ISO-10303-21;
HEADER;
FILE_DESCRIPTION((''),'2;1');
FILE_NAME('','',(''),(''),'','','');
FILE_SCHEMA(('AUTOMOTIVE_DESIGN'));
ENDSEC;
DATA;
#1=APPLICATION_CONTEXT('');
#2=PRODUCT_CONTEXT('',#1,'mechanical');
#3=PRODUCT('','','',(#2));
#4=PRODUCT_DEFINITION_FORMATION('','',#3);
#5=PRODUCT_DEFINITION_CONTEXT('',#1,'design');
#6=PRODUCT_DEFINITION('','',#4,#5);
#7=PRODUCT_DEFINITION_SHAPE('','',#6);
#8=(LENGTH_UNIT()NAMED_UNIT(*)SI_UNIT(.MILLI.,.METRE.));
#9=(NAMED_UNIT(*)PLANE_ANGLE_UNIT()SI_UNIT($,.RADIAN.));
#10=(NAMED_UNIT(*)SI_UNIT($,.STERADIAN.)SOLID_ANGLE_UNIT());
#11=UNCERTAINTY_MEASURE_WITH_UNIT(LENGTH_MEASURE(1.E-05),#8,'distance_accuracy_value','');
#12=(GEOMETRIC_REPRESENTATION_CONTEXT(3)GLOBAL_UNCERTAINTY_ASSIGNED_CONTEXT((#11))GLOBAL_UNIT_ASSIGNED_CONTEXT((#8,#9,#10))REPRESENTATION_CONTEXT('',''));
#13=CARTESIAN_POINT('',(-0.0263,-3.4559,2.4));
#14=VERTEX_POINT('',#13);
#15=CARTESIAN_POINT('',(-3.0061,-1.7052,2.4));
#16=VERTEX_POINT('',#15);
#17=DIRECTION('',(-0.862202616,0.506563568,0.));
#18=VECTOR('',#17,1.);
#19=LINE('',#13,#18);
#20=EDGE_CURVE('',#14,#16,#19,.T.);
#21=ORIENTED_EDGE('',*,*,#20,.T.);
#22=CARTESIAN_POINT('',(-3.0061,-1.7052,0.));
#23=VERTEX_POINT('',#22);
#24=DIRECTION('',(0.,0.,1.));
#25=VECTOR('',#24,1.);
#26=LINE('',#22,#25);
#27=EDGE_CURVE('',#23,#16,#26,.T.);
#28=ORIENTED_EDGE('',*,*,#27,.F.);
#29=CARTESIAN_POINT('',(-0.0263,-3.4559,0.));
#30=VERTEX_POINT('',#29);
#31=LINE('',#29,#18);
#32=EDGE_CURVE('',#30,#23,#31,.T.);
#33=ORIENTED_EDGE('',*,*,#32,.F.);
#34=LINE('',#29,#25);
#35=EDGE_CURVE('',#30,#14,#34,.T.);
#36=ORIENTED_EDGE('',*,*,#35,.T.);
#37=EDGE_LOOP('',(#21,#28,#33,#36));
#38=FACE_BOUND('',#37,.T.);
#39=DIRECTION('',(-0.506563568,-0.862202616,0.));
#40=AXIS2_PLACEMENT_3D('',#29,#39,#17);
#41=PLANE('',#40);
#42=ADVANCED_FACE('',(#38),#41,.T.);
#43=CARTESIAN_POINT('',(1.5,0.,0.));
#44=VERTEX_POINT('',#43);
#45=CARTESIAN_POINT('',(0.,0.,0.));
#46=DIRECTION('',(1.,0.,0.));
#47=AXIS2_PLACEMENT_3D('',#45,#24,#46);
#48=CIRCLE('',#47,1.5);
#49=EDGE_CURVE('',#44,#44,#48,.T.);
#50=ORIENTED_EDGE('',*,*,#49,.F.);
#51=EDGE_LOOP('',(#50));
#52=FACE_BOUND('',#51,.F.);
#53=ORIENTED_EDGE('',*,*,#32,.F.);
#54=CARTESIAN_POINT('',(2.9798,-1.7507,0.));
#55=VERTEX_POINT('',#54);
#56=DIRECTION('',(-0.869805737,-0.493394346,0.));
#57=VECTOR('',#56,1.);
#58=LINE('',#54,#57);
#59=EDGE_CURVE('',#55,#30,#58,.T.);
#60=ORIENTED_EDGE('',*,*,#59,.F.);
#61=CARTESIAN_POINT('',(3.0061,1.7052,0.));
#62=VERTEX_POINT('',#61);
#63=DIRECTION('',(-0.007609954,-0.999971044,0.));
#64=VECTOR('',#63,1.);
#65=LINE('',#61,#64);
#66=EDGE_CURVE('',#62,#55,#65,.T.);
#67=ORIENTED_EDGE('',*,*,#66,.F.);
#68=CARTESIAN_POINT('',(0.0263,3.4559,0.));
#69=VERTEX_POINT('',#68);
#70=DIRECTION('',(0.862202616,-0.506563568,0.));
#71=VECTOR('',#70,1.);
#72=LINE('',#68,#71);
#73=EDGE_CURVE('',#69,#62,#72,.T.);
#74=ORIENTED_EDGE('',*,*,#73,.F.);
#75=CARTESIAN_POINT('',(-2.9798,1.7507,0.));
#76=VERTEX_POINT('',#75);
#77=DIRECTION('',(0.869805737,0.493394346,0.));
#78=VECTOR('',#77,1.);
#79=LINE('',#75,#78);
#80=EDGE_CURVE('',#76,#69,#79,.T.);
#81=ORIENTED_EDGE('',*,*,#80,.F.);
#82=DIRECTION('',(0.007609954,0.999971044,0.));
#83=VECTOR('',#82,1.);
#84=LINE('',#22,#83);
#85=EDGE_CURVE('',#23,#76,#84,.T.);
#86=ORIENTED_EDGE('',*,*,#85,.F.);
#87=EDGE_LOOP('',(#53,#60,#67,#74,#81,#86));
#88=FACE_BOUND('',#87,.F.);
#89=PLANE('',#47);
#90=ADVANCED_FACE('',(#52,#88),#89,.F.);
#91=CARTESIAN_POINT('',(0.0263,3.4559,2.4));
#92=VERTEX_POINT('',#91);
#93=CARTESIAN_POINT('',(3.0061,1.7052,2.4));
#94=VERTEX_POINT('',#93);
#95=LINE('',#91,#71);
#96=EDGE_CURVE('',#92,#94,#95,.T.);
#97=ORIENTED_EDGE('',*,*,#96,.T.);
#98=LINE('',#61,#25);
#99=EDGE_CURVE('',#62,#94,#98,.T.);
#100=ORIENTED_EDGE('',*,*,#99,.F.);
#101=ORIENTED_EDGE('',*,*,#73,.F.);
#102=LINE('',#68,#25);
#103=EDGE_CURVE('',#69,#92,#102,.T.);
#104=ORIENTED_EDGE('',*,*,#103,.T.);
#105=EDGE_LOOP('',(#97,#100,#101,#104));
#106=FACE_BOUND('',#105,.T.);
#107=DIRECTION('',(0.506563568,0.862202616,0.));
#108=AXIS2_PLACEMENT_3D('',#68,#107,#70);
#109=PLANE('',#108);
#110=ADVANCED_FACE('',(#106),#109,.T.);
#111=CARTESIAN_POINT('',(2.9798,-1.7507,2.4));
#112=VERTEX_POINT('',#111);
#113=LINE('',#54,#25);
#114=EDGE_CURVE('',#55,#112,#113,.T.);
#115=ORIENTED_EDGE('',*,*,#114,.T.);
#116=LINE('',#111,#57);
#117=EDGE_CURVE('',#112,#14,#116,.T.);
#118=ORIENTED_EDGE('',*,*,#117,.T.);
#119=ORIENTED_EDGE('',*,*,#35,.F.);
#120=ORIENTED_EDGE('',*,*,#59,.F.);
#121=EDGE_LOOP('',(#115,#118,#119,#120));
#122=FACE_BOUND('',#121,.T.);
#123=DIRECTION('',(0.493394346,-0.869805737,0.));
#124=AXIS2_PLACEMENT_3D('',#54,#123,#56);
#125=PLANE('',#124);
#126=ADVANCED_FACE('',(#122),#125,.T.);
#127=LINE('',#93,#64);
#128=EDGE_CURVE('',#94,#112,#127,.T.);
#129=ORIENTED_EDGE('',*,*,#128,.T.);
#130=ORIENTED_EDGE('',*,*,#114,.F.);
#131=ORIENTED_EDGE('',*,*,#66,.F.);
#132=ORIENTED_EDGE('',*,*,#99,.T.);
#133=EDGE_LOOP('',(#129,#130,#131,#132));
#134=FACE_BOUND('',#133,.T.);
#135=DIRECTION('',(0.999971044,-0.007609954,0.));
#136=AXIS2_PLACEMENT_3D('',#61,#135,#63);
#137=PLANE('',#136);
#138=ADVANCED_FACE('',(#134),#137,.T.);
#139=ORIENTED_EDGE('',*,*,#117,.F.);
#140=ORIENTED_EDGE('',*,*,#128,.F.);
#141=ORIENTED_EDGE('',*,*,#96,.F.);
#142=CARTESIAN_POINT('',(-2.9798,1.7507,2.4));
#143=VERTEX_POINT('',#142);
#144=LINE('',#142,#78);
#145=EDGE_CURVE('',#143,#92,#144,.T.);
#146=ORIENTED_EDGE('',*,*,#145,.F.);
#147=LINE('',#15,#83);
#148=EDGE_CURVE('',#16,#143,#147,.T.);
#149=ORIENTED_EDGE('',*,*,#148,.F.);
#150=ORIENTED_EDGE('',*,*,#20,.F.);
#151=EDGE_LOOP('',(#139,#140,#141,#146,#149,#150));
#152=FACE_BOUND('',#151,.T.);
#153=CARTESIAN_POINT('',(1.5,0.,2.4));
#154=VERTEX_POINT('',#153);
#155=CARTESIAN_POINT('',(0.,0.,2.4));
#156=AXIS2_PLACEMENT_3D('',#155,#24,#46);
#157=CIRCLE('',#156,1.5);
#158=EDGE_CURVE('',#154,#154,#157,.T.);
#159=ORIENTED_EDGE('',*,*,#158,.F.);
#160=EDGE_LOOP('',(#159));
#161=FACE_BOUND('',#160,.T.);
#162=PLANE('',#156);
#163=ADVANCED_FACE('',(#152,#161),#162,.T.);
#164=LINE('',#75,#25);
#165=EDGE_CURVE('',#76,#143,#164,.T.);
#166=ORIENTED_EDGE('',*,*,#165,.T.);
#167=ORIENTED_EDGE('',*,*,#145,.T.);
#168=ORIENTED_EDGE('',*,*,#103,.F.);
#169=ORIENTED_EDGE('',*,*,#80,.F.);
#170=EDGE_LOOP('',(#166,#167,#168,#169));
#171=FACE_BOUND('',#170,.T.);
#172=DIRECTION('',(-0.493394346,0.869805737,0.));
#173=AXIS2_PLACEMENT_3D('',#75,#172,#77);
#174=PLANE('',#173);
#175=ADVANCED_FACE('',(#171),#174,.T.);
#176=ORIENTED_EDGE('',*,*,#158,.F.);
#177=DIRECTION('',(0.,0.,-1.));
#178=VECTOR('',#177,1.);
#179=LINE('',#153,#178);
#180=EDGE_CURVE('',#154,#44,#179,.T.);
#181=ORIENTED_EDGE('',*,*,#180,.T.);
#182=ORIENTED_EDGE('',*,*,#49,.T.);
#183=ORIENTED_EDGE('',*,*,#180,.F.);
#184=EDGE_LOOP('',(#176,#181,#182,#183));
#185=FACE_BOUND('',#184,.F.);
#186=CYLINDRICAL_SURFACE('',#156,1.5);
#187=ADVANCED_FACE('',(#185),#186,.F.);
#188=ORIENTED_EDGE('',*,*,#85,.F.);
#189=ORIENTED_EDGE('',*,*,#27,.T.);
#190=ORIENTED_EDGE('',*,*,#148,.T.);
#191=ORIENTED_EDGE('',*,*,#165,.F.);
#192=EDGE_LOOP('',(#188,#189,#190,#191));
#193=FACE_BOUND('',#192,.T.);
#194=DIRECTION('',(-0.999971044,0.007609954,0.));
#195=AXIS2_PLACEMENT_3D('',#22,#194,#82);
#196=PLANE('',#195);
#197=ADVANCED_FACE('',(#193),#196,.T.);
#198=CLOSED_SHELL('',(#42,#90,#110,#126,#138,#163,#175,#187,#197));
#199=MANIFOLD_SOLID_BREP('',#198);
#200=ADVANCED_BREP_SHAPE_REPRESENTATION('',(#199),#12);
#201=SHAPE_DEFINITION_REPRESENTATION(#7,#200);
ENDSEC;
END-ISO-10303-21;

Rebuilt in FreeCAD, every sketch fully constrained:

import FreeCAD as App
import Part
import Sketcher
from FreeCAD import Vector
Q = App.Units.Quantity


def add_polygon(sketch, points):
    """Adds a closed chain of lines whose ends are joined by coincident constraints."""
    first, n = sketch.GeometryCount, len(points)
    for a, b in zip(points, points[1:] + points[:1]):
        sketch.addGeometry(Part.LineSegment(App.Vector(*a, 0), App.Vector(*b, 0)), False)
    for i in range(n):
        sketch.addConstraint(Sketcher.Constraint("Coincident", first + i, 2, first + (i + 1) % n, 1))

doc = App.newDocument("Part")
body = doc.addObject("PartDesign::Body", "Body")

sketch1 = body.newObject("Sketcher::SketchObject", "Sketch")
sketch1.AttachmentSupport = (doc.getObject("XY_Plane"), [""])
sketch1.MapMode = "FlatFace"
add_polygon(sketch1, [(0, 3.5), (-3, 1.8), (-3, -1.7), (0, -3.5), (3, -1.8), (3, 1.7)])
sketch1.addConstraint([
    Sketcher.Constraint("Symmetric", 0, 2, 3, 2, -1, 1),
    Sketcher.Constraint("Symmetric", 1, 2, 4, 2, -1, 1),
    Sketcher.Constraint("Symmetric", 2, 2, 5, 2, -1, 1),
    Sketcher.Constraint("Equal", 0, 1),
    Sketcher.Constraint("Equal", 1, 2),
    Sketcher.Constraint("Distance", 0, Q("3.456 mm")),
    Sketcher.Constraint("DistanceX", 1, 2, -1, 1, Q("3.006 mm")),
    Sketcher.Constraint("DistanceY", 2, 2, -1, 1, Q("3.456 mm")),
    Sketcher.Constraint("DistanceX", 2, 2, 3, 2, Q("3.006 mm")),
])
pad1 = body.newObject("PartDesign::Pad", "Pad")
pad1.Profile = sketch1
pad1.Length = 2.4

sketch2 = body.newObject("Sketcher::SketchObject", "Sketch001")
sketch2.AttachmentSupport = (doc.getObject("XY_Plane"), [""])
sketch2.MapMode = "FlatFace"
sketch2.AttachmentOffset = App.Placement(Vector(0, 0, 2.4), App.Rotation())
sketch2.addGeometry(Part.Circle(Vector(0, 0, 0), Vector(0, 0, 1), 1.5), False)
sketch2.addConstraint([
    Sketcher.Constraint("Coincident", 0, 3, -1, 1),
    Sketcher.Constraint("Diameter", 0, Q("3 mm")),
])
pocket1 = body.newObject("PartDesign::Pocket", "Pocket")
pocket1.Profile = sketch2
pocket1.Type = "ThroughAll"

doc.recompute()
